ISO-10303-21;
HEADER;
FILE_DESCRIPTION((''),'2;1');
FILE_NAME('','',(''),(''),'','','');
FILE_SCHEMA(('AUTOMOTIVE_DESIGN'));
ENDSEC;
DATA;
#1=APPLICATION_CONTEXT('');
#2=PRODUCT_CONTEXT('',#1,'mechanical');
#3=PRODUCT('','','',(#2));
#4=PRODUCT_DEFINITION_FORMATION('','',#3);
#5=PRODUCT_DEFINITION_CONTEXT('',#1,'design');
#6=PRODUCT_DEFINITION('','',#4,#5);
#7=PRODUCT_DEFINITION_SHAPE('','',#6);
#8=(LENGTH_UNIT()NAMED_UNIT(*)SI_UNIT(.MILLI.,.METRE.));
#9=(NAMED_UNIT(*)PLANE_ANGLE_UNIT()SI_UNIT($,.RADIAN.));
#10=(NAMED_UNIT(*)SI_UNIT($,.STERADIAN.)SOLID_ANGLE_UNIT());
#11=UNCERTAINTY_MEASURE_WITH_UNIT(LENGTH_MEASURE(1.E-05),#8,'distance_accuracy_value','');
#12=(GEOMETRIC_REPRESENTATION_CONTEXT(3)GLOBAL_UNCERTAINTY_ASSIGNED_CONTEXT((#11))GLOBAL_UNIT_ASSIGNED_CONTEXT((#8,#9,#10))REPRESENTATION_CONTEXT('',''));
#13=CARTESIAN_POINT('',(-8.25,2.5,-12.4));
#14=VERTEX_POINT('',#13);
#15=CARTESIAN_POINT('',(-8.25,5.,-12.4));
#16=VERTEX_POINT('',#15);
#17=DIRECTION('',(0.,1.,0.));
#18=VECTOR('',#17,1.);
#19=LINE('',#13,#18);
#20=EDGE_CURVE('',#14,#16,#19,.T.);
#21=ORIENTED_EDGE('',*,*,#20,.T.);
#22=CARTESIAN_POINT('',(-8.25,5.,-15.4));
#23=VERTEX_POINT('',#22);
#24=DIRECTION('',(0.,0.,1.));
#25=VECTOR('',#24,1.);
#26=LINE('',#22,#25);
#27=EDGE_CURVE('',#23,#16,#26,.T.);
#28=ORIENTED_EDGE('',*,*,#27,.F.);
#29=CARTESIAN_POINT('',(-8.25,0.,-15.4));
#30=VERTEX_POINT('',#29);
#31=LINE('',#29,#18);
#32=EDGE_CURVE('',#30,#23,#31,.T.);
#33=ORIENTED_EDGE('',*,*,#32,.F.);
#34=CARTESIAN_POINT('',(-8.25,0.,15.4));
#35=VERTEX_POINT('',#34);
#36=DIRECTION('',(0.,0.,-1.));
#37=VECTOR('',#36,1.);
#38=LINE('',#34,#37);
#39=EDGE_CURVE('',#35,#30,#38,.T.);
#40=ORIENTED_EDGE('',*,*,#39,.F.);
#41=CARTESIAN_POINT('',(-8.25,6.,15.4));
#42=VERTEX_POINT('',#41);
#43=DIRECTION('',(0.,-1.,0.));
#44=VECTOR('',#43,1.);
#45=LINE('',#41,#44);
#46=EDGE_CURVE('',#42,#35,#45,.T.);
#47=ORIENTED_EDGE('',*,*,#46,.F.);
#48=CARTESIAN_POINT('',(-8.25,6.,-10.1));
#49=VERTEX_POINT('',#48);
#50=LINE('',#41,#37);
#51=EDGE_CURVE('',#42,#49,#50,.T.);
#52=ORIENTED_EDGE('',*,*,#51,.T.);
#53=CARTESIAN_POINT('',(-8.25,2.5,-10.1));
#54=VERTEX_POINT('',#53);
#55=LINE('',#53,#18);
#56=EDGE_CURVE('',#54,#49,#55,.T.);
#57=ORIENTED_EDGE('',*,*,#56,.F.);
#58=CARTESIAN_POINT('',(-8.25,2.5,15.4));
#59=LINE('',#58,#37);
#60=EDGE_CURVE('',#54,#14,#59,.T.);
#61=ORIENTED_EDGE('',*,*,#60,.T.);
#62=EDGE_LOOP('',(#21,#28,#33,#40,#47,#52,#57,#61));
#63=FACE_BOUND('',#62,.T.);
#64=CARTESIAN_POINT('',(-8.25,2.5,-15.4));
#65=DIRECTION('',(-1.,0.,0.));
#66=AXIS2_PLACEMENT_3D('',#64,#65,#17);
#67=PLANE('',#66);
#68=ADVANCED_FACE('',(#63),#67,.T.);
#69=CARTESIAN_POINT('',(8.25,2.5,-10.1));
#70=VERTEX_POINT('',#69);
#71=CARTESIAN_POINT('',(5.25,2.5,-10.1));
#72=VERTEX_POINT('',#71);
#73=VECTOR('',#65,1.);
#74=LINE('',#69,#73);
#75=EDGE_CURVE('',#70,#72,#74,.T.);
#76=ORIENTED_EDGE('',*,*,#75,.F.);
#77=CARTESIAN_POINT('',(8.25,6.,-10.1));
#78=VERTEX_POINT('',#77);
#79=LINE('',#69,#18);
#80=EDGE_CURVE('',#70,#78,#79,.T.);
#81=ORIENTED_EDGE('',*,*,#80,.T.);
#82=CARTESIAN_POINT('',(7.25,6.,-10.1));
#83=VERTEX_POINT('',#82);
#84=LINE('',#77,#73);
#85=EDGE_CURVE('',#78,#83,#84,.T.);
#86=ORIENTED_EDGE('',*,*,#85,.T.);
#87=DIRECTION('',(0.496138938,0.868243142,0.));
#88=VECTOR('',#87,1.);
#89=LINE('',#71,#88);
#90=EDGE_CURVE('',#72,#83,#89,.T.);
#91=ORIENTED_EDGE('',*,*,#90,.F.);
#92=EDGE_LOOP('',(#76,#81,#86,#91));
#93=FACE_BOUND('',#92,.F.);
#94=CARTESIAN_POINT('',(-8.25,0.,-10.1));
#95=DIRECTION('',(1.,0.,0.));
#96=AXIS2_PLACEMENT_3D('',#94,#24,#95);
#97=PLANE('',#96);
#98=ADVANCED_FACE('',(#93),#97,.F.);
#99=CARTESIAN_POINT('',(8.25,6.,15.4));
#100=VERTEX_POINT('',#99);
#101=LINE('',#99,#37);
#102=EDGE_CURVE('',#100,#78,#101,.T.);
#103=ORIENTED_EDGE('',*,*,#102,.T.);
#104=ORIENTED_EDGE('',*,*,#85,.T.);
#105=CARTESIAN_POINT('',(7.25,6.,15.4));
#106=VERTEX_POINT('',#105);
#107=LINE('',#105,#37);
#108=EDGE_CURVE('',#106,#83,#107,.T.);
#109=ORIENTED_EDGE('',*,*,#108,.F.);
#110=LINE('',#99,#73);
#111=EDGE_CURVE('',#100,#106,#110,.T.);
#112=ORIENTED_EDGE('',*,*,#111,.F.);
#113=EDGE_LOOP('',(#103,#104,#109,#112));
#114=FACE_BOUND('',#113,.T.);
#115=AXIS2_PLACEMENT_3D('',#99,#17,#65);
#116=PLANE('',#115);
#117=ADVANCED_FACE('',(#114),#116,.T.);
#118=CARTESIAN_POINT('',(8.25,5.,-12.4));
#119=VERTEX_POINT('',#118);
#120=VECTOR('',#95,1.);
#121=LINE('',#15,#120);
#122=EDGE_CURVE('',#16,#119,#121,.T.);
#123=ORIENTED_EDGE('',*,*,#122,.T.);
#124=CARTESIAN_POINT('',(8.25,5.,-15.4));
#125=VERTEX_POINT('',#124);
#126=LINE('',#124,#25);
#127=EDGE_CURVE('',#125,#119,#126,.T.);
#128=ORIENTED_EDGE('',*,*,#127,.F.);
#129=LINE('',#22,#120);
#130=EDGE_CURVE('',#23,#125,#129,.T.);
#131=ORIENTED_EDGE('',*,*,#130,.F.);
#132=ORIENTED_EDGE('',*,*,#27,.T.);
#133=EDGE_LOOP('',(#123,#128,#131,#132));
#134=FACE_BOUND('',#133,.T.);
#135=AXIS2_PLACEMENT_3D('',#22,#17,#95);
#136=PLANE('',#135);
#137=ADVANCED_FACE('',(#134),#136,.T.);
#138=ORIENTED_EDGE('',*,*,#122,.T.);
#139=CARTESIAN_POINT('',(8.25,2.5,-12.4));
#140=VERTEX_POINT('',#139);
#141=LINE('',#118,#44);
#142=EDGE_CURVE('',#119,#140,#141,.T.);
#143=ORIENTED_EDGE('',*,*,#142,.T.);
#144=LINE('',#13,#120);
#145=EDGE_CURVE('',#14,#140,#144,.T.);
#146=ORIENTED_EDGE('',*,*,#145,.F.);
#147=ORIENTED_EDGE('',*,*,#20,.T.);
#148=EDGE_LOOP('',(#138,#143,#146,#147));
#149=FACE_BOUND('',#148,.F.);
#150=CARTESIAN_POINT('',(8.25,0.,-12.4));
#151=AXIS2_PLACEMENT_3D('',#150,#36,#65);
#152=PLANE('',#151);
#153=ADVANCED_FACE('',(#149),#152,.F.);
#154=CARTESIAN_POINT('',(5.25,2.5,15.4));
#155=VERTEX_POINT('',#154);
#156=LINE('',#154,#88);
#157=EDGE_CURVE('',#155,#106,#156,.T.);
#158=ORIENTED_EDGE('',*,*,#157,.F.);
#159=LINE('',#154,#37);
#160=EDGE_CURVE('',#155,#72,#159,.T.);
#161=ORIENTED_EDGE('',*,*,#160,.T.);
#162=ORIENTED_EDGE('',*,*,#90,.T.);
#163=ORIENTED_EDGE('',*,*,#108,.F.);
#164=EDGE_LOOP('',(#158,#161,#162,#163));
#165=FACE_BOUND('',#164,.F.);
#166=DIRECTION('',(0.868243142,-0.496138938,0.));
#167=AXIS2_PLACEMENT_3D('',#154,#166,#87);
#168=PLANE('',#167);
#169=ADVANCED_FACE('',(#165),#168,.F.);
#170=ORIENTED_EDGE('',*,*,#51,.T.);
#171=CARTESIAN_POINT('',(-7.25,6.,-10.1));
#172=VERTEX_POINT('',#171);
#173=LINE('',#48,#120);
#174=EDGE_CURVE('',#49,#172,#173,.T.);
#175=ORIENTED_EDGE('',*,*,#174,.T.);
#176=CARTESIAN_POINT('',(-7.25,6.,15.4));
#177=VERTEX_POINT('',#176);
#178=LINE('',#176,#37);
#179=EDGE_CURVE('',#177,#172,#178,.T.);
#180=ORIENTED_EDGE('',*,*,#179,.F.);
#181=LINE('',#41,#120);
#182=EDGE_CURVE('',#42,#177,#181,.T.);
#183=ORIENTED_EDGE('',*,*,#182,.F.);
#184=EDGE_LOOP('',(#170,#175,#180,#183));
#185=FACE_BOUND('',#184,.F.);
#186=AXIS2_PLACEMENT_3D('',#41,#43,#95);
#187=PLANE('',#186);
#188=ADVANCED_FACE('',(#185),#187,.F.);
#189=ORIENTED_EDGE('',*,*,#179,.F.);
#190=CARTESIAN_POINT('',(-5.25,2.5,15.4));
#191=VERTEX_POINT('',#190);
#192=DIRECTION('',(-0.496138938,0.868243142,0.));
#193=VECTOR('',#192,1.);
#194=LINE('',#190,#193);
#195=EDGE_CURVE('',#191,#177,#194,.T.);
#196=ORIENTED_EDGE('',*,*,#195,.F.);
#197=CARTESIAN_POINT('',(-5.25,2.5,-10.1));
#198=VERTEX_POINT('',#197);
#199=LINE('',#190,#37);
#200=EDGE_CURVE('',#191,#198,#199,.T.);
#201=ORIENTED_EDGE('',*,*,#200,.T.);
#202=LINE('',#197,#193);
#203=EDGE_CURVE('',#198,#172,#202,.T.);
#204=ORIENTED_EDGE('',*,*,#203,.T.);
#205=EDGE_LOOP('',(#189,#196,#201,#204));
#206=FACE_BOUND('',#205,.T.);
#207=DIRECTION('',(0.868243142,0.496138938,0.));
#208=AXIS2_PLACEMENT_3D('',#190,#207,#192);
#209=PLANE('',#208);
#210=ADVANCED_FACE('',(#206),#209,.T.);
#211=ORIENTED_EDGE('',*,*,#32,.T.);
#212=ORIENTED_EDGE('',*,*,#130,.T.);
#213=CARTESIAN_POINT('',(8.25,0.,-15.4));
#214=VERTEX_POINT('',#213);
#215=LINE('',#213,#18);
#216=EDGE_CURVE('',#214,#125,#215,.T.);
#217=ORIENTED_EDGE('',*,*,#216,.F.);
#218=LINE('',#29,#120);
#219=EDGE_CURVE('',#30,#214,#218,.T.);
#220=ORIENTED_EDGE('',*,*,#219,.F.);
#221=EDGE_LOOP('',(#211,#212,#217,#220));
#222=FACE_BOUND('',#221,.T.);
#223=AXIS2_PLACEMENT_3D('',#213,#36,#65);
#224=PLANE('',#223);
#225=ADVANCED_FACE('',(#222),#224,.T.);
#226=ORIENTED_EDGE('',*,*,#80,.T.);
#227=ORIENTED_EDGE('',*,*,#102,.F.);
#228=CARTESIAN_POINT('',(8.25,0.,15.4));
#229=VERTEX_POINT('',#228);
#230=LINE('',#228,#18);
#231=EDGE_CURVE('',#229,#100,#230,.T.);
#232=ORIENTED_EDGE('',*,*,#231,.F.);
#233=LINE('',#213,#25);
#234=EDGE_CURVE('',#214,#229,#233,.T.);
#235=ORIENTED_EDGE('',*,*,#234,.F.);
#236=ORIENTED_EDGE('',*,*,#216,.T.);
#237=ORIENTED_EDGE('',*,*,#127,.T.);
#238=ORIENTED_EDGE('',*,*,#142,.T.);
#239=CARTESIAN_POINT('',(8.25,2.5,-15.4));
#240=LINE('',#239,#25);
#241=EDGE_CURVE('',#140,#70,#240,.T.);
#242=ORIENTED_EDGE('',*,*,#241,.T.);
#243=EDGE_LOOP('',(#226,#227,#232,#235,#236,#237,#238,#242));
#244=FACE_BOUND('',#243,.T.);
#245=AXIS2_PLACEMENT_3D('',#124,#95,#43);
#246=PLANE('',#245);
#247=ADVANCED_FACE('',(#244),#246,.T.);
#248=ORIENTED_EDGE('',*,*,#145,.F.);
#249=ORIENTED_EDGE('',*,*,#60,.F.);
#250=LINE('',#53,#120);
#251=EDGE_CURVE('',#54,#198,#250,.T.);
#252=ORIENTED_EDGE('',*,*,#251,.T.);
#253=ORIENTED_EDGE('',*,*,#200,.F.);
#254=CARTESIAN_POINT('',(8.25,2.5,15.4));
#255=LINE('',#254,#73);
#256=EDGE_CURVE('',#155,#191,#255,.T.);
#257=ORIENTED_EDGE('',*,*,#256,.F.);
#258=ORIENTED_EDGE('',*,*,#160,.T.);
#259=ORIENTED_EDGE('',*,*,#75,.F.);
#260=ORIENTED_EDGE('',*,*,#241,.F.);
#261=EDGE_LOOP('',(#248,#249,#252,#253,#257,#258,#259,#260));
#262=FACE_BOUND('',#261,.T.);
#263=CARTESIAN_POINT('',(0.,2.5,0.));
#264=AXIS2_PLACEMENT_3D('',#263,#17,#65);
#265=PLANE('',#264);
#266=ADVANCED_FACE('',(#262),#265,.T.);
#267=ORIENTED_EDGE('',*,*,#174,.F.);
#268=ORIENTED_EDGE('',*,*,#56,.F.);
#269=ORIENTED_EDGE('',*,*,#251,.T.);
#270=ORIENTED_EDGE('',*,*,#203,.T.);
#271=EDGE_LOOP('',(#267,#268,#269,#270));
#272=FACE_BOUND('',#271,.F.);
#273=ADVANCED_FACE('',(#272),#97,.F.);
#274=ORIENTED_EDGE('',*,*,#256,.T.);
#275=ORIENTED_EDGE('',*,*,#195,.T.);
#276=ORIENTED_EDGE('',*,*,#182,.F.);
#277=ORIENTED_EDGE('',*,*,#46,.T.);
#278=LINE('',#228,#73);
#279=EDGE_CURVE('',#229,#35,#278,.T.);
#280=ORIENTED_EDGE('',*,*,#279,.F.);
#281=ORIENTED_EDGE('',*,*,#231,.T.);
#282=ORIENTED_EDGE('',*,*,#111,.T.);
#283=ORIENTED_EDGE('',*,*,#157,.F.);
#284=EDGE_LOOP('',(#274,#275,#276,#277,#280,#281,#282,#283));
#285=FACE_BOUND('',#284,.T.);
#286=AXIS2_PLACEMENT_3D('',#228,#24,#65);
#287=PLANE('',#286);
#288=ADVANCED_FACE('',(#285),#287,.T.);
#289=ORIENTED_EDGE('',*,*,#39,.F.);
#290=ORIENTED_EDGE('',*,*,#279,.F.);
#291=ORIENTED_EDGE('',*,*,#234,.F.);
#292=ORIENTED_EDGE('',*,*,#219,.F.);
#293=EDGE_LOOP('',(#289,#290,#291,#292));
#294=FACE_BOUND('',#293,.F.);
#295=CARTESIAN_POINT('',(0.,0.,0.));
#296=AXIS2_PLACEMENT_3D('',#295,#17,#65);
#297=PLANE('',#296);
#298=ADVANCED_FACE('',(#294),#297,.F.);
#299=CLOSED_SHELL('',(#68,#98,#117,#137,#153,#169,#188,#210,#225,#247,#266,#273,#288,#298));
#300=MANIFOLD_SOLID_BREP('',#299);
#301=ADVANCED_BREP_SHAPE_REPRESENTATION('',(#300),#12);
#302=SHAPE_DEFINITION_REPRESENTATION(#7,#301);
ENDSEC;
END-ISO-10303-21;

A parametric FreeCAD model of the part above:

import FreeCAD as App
import Part
import Sketcher


def add_polygon(sketch, points):
    """Adds a closed chain of lines whose ends are joined by coincident constraints."""
    first, n = sketch.GeometryCount, len(points)
    for a, b in zip(points, points[1:] + points[:1]):
        sketch.addGeometry(Part.LineSegment(App.Vector(*a, 0), App.Vector(*b, 0)), False)
    for i in range(n):
        sketch.addConstraint(Sketcher.Constraint("Coincident", first + i, 2, first + (i + 1) % n, 1))

doc = App.newDocument("Part")
body = doc.addObject("PartDesign::Body", "Body")

# Sketch on XZ plane
sketch1 = body.newObject("Sketcher::SketchObject", "Sketch")
sketch1.AttachmentSupport = (doc.getObject("XZ_Plane"), [""])
sketch1.MapMode = "FlatFace"
add_polygon(sketch1, [(-8, 15), (8, 15), (8, -15), (-8, -15)])  # lines 0-3
sketch1.addConstraint([
    Sketcher.Constraint("Horizontal", 0),
    Sketcher.Constraint("Vertical", 1),
    Sketcher.Constraint("Horizontal", 2),
    Sketcher.Constraint("Vertical", 3),
    Sketcher.Constraint("Symmetric", 0, 2, 2, 2, -1, 1),
    Sketcher.Constraint("DistanceX", 0, 1, 0, 2, 16.5),
    Sketcher.Constraint("DistanceY", 1, 2, 1, 1, 30.8),
])
pad1 = body.newObject("PartDesign::Pad", "Pad")
pad1.Profile = sketch1
pad1.Length = 2.5
pad1.Reversed = True

# Sketch on XY plane
sketch2 = body.newObject("Sketcher::SketchObject", "Sketch001")
sketch2.AttachmentSupport = (doc.getObject("XY_Plane"), [""])
sketch2.MapMode = "FlatFace"
sketch2.AttachmentOffset = App.Placement(App.Vector(0, 0, 15.4), App.Rotation())
add_polygon(sketch2, [(-8.2, 6), (-8.2, 2.5), (-5.2, 2.5), (-7.2, 6)])  # lines 0-3
add_polygon(sketch2, [(5.2, 2.5), (8.2, 2.5), (8.2, 6), (7.2, 6)])  # lines 4-7
sketch2.addConstraint([
    Sketcher.Constraint("Vertical", 0),
    Sketcher.Constraint("Horizontal", 1),
    Sketcher.Constraint("Horizontal", 3),
    Sketcher.Constraint("Horizontal", 4),
    Sketcher.Constraint("Vertical", 5),
    Sketcher.Constraint("Horizontal", 6),
    Sketcher.Constraint("Symmetric", 0, 2, 4, 2, -2),
    Sketcher.Constraint("Symmetric", 2, 2, 6, 2, -2),
    Sketcher.Constraint("Equal", 1, 4),
    Sketcher.Constraint("DistanceX", 1, 1, 1, 2, 3.0),
    Sketcher.Constraint("DistanceX", 3, 2, 3, 1, 1.0),
    Sketcher.Constraint("DistanceY", 0, 2, 0, 1, 3.5),
    Sketcher.Constraint("DistanceY", -1, 1, 2, 2, 6.0),
    Sketcher.Constraint("DistanceX", 1, 2, 4, 2, 13.5),
])
pad2 = body.newObject("PartDesign::Pad", "Pad001")
pad2.Profile = sketch2
pad2.Length = 25.5
pad2.Reversed = True

# Sketch on XY plane
sketch3 = body.newObject("Sketcher::SketchObject", "Sketch002")
sketch3.AttachmentSupport = (doc.getObject("XY_Plane"), [""])
sketch3.MapMode = "FlatFace"
sketch3.AttachmentOffset = App.Placement(App.Vector(0, 0, -15.4), App.Rotation())
add_polygon(sketch3, [(8.2, 5), (8.2, 2.5), (-8.2, 2.5), (-8.2, 5)])  # lines 0-3
sketch3.addConstraint([
    Sketcher.Constraint("Vertical", 0),
    Sketcher.Constraint("Horizontal", 1),
    Sketcher.Constraint("Vertical", 2),
    Sketcher.Constraint("Horizontal", 3),
    Sketcher.Constraint("DistanceY", 0, 2, 0, 1, 2.5),
    Sketcher.Constraint("DistanceY", -1, 1, 0, 2, 2.5),
    Sketcher.Constraint("DistanceX", 1, 2, 1, 1, 16.5),
    Sketcher.Constraint("DistanceX", -1, 1, 0, 2, 8.25),
])
pad3 = body.newObject("PartDesign::Pad", "Pad002")
pad3.Profile = sketch3
pad3.Length = 3

doc.recompute()
